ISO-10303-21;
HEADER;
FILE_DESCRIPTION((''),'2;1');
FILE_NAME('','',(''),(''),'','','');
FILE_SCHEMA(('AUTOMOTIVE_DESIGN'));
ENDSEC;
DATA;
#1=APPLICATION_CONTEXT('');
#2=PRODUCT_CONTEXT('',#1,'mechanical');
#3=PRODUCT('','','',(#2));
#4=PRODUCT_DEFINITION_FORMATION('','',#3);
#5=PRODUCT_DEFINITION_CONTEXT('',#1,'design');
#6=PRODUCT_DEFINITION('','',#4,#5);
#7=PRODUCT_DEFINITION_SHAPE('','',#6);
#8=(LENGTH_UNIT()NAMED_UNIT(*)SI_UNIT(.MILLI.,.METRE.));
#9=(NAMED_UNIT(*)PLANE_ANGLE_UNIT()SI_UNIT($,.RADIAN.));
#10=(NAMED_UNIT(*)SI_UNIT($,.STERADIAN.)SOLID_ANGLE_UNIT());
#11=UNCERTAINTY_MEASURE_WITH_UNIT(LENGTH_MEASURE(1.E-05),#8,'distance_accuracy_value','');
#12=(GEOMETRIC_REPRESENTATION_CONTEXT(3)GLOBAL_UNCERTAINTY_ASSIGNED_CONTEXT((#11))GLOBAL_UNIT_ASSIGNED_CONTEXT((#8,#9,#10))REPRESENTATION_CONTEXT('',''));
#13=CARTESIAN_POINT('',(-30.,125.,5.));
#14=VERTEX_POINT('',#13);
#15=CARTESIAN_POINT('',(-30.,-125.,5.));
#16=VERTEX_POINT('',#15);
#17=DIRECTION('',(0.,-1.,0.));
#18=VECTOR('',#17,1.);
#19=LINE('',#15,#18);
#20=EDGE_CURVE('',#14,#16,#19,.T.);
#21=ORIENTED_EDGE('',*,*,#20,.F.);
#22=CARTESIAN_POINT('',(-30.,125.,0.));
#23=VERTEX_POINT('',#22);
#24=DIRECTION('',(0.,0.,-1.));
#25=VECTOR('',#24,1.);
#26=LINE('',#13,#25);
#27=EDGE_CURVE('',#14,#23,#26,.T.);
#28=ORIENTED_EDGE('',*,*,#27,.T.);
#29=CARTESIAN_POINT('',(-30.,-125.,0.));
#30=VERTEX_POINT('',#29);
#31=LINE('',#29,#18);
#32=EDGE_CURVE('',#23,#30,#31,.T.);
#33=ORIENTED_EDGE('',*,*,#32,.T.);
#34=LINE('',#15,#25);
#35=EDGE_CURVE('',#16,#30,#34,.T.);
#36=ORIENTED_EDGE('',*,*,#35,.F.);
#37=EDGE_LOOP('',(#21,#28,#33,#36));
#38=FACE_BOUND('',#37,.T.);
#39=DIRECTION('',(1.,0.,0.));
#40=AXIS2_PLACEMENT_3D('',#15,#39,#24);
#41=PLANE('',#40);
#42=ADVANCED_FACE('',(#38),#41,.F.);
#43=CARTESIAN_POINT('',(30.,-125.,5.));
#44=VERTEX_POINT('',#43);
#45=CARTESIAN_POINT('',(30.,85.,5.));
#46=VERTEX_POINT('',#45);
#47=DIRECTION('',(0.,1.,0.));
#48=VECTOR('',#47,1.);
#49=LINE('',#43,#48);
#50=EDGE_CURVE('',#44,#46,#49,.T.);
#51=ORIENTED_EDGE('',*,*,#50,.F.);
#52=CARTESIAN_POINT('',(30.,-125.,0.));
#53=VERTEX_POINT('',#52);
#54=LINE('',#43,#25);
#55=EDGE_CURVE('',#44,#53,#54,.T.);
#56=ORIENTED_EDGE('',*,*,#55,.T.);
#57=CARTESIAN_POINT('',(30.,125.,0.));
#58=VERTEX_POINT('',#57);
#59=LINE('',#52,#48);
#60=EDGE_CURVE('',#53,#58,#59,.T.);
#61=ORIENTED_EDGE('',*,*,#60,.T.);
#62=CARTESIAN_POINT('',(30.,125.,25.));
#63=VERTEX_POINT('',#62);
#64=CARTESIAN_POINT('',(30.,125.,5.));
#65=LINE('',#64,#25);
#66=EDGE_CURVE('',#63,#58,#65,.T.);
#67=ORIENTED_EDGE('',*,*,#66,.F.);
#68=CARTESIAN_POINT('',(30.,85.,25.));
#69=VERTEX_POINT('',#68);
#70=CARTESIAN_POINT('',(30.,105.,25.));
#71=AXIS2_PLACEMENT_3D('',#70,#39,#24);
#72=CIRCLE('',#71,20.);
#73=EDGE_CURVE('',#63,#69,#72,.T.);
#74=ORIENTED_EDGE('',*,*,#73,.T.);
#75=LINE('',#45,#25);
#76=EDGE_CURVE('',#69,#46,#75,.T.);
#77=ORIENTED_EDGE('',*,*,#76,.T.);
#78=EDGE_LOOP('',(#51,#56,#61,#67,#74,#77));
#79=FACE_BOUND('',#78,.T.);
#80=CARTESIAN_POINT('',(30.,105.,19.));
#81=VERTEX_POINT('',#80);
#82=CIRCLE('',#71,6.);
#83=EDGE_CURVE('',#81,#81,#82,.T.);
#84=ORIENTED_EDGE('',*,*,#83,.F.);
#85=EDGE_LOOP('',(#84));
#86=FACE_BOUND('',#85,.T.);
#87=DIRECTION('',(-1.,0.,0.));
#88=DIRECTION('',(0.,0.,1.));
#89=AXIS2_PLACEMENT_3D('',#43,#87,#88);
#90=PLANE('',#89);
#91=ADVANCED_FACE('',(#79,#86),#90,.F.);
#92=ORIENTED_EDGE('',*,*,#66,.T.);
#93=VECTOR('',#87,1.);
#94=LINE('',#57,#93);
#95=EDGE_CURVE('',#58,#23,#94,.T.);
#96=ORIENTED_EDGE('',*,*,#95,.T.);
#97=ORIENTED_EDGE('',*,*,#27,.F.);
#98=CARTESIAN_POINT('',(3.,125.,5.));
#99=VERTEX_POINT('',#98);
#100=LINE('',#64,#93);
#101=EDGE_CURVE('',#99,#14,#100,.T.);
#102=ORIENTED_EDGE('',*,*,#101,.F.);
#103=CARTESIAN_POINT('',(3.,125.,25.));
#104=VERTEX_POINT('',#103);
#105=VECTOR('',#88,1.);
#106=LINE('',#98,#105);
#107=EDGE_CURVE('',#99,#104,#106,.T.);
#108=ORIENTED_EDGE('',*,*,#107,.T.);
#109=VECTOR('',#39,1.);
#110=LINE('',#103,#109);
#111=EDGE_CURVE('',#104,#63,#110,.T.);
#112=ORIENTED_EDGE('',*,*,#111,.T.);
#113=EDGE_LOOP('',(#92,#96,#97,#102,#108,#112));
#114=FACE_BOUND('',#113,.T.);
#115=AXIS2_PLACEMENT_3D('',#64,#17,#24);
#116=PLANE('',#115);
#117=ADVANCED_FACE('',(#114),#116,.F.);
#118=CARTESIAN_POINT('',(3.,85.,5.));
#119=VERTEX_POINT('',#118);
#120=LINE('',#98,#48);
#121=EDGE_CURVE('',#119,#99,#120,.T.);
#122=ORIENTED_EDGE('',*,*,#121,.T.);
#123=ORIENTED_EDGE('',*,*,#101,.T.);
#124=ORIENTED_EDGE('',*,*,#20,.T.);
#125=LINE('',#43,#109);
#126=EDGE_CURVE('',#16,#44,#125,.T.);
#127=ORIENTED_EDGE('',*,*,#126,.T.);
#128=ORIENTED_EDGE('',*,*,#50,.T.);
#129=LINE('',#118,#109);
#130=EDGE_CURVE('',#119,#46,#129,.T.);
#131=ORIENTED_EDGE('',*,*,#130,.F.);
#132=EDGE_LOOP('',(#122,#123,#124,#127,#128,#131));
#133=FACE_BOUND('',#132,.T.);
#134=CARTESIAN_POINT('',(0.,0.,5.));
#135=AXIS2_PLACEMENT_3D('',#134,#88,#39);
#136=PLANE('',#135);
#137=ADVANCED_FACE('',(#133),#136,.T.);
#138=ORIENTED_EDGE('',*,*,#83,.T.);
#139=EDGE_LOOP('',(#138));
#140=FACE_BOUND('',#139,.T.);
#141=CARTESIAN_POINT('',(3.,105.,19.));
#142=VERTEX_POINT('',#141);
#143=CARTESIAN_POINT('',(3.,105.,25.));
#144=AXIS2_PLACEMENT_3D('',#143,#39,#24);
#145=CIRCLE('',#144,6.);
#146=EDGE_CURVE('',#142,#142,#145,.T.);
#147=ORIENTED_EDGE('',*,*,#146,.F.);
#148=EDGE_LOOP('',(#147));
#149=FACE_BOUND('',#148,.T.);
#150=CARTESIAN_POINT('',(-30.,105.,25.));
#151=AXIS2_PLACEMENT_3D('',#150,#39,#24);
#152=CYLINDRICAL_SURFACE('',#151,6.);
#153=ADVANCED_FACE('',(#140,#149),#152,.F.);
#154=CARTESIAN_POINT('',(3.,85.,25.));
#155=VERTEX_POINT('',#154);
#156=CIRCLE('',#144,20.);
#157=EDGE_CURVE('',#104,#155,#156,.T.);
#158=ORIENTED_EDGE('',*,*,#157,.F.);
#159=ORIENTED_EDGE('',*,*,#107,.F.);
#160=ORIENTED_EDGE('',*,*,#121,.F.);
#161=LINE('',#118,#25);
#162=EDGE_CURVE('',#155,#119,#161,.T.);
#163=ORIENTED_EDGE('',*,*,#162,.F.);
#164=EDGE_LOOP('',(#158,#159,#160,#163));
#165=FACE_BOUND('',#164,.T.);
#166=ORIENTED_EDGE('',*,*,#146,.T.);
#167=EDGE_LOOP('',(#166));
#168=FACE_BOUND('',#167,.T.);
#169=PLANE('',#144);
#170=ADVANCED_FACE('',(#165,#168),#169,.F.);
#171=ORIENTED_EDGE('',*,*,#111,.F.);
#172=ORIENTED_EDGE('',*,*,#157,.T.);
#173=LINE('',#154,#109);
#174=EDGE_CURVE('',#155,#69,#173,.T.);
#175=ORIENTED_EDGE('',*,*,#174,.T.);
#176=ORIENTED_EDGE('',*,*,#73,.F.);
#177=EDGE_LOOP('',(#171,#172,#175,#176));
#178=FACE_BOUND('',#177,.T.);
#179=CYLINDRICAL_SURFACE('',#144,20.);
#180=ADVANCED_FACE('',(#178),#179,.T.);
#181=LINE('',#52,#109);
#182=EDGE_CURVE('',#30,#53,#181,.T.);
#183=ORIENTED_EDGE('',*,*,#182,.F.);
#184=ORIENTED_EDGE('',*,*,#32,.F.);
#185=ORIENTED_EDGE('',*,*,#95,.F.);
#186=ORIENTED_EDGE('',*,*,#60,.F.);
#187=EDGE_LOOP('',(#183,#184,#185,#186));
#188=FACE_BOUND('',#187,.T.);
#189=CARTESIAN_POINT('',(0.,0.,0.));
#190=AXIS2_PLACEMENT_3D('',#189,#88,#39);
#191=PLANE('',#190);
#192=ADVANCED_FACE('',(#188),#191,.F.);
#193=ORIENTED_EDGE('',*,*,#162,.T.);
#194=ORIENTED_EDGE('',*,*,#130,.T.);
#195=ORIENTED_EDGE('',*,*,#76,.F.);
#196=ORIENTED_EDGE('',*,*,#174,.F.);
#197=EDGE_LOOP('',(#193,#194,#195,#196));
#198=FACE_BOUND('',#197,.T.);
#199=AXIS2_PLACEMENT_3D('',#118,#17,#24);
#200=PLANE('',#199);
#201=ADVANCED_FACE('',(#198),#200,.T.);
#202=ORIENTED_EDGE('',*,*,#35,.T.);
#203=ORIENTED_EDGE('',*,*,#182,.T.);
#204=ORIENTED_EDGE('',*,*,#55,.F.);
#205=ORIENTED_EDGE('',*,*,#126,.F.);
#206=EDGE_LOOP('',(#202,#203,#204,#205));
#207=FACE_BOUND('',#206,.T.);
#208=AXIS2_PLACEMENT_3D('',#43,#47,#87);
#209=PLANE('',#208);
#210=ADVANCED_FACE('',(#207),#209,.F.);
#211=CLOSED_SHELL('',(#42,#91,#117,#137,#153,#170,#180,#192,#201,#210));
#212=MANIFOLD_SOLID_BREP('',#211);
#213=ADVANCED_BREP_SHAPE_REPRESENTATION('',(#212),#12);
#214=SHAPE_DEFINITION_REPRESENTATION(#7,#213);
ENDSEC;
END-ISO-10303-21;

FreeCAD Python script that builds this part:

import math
import FreeCAD as App
import Part
import Sketcher
from FreeCAD import Vector

doc = App.newDocument("Part")
body = doc.addObject("PartDesign::Body", "Body")

sketch1 = body.newObject("Sketcher::SketchObject", "Sketch")
sketch1.AttachmentSupport = (doc.getObject("XY_Plane"), [""])
sketch1.MapMode = "FlatFace"
sketch1.addGeometry(Part.LineSegment(Vector(-30, 125, 0), Vector(-30, -125, 0)), False)
sketch1.addGeometry(Part.LineSegment(Vector(-30, -125, 0), Vector(30, -125, 0)), False)
sketch1.addGeometry(Part.LineSegment(Vector(30, -125, 0), Vector(30, 125, 0)), False)
sketch1.addGeometry(Part.LineSegment(Vector(30, 125, 0), Vector(-30, 125, 0)), False)
sketch1.addConstraint(Sketcher.Constraint("Coincident", 0, 2, 1, 1))
sketch1.addConstraint(Sketcher.Constraint("Coincident", 1, 2, 2, 1))
sketch1.addConstraint(Sketcher.Constraint("Coincident", 2, 2, 3, 1))
sketch1.addConstraint(Sketcher.Constraint("Coincident", 3, 2, 0, 1))
sketch1.addConstraint(Sketcher.Constraint("Vertical", 0))
sketch1.addConstraint(Sketcher.Constraint("Horizontal", 1))
sketch1.addConstraint(Sketcher.Constraint("Vertical", 2))
sketch1.addConstraint(Sketcher.Constraint("Horizontal", 3))
sketch1.addConstraint(Sketcher.Constraint("Symmetric", 0, 2, 2, 2, -1, 1))
sketch1.addConstraint(Sketcher.Constraint("DistanceX", 1, 1, 1, 2, 60.0))
sketch1.addConstraint(Sketcher.Constraint("DistanceY", 0, 2, 0, 1, 250.0))
pad1 = body.newObject("PartDesign::Pad", "Pad")
pad1.Profile = sketch1
pad1.Length = 5

sketch2 = body.newObject("Sketcher::SketchObject", "Sketch001")
sketch2.AttachmentSupport = (doc.getObject("YZ_Plane"), [""])
sketch2.MapMode = "FlatFace"
sketch2.AttachmentOffset = App.Placement(Vector(0, 0, 30), App.Rotation())
sketch2.addGeometry(Part.LineSegment(Vector(85, 5, 0), Vector(125, 5, 0)), False)
sketch2.addGeometry(Part.LineSegment(Vector(125, 5, 0), Vector(125, 25, 0)), False)
sketch2.addGeometry(Part.ArcOfCircle(Part.Circle(Vector(105, 25, 0), Vector(0, 0, 1), 20), math.radians(0), math.radians(180)), False)
sketch2.addGeometry(Part.LineSegment(Vector(85, 25, 0), Vector(85, 5, 0)), False)
sketch2.addConstraint(Sketcher.Constraint("Coincident", 0, 2, 1, 1))
sketch2.addConstraint(Sketcher.Constraint("Tangent", 1, 2, 2, 1))
sketch2.addConstraint(Sketcher.Constraint("Tangent", 2, 2, 3, 1))
sketch2.addConstraint(Sketcher.Constraint("Coincident", 3, 2, 0, 1))
sketch2.addConstraint(Sketcher.Constraint("Horizontal", 0))
sketch2.addConstraint(Sketcher.Constraint("Vertical", 1))
sketch2.addConstraint(Sketcher.Constraint("Vertical", 3))
sketch2.addConstraint(Sketcher.Constraint("Radius", 2, 20.0))
sketch2.addConstraint(Sketcher.Constraint("DistanceY", 1, 1, 1, 2, 20.0))
sketch2.addConstraint(Sketcher.Constraint("DistanceX", -1, 1, 2, 3, 105.0))
sketch2.addConstraint(Sketcher.Constraint("DistanceY", -1, 1, 2, 3, 25.0))
pad2 = body.newObject("PartDesign::Pad", "Pad001")
pad2.Profile = sketch2
pad2.Length = 27
pad2.Reversed = True

sketch3 = body.newObject("Sketcher::SketchObject", "Sketch002")
sketch3.AttachmentSupport = (doc.getObject("YZ_Plane"), [""])
sketch3.MapMode = "FlatFace"
sketch3.AttachmentOffset = App.Placement(Vector(0, 0, 30), App.Rotation())
sketch3.addGeometry(Part.Circle(Vector(105, 25, 0), Vector(0, 0, 1), 6), False)
sketch3.addConstraint(Sketcher.Constraint("Diameter", 0, 12.0))
sketch3.addConstraint(Sketcher.Constraint("DistanceX", -1, 1, 0, 3, 105.0))
sketch3.addConstraint(Sketcher.Constraint("DistanceY", -1, 1, 0, 3, 25.0))
pocket1 = body.newObject("PartDesign::Pocket", "Pocket")
pocket1.Profile = sketch3
pocket1.Type = "ThroughAll"

doc.recompute()
